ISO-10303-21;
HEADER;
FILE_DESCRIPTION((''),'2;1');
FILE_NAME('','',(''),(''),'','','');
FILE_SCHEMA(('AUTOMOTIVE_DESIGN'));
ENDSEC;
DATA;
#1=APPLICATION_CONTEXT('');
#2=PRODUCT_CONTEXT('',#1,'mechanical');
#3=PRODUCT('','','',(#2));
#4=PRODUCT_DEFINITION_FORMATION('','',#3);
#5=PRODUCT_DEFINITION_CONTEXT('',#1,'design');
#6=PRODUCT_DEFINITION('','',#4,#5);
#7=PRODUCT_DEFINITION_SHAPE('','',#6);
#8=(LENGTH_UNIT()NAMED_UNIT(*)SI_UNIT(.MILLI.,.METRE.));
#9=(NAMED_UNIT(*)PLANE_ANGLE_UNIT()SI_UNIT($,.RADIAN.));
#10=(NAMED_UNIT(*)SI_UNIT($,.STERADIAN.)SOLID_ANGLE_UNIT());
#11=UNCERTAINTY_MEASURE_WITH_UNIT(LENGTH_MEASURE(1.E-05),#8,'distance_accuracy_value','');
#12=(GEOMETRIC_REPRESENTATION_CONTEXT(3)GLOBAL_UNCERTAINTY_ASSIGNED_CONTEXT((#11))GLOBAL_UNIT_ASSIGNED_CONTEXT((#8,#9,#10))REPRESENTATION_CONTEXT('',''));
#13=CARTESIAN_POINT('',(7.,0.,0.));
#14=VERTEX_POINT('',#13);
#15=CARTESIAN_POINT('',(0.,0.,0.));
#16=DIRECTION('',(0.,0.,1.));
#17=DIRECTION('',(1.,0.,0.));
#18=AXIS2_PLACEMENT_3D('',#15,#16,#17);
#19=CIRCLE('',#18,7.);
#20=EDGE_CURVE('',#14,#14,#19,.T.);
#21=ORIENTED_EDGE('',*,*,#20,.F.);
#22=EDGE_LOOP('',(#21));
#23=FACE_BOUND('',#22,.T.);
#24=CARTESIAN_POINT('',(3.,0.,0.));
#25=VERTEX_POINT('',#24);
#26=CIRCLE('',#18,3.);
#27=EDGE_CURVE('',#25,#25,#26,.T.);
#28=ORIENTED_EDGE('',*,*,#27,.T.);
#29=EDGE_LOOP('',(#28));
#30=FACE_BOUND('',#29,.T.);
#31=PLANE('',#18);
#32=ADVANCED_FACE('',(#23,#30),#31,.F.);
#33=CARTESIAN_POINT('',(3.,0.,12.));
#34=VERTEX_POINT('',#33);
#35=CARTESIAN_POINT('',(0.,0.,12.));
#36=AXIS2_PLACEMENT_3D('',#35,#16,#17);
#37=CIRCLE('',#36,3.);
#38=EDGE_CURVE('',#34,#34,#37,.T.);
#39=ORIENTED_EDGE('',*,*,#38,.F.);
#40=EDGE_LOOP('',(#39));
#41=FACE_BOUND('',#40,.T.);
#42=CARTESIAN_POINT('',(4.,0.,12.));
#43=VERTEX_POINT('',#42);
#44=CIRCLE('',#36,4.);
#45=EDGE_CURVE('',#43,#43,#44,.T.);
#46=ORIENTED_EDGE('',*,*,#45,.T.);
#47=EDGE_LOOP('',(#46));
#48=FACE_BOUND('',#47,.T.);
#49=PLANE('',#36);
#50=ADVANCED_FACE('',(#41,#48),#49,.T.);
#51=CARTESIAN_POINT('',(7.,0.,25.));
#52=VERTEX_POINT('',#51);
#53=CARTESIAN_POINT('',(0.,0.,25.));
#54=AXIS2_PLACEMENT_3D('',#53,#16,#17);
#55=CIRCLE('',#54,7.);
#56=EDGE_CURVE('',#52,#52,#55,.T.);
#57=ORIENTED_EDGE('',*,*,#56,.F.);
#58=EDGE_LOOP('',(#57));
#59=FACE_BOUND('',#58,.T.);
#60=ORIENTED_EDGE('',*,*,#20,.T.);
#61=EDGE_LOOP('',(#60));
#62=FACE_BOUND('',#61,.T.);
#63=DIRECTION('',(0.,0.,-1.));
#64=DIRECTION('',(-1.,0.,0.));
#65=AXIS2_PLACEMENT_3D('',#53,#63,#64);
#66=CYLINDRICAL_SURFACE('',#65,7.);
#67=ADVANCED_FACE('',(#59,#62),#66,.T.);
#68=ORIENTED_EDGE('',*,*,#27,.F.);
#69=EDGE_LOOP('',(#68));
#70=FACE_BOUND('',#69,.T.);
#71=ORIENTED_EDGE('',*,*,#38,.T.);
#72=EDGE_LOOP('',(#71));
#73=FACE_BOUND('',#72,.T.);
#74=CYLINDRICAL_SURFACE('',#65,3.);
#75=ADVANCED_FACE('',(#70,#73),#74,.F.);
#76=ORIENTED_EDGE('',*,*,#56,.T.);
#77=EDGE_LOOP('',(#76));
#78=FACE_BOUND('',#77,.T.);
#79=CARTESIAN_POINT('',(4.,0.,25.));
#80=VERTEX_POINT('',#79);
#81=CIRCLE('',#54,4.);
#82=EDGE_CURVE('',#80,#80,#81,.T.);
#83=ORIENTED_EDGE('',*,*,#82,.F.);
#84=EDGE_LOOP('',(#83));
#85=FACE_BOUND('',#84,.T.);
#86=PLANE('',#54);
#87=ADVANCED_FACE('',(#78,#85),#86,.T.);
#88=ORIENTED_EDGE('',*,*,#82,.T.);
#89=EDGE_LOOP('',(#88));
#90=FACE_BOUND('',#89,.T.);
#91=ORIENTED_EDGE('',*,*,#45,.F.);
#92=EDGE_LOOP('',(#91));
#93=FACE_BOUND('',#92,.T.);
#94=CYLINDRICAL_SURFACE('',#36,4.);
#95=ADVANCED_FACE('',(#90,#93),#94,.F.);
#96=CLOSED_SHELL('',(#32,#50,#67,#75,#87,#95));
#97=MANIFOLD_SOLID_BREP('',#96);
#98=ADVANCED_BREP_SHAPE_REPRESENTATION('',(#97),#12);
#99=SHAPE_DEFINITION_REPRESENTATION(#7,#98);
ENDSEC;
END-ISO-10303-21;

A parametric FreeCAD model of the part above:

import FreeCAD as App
import Part
import Sketcher
from FreeCAD import Vector
Q = App.Units.Quantity

doc = App.newDocument("Part")
body = doc.addObject("PartDesign::Body", "Body")

sketch1 = body.newObject("Sketcher::SketchObject", "Sketch")
sketch1.AttachmentSupport = (doc.getObject("XY_Plane"), [""])
sketch1.MapMode = "FlatFace"
sketch1.addGeometry([
    Part.Circle(Vector(0, 0, 0), Vector(0, 0, 1), 7),
    Part.Circle(Vector(0, 0, 0), Vector(0, 0, 1), 3),
], False)
sketch1.addConstraint([
    Sketcher.Constraint("Coincident", 0, 3, -1, 1),
    Sketcher.Constraint("Coincident", 1, 3, -1, 1),
    Sketcher.Constraint("Diameter", 0, Q("14 mm")),
    Sketcher.Constraint("Diameter", 1, Q("6 mm")),
])
pad1 = body.newObject("PartDesign::Pad", "Pad")
pad1.Profile = sketch1
pad1.Length = 25

sketch2 = body.newObject("Sketcher::SketchObject", "Sketch001")
sketch2.AttachmentSupport = (doc.getObject("XY_Plane"), [""])
sketch2.MapMode = "FlatFace"
sketch2.AttachmentOffset = App.Placement(Vector(0, 0, 25), App.Rotation())
sketch2.addGeometry(Part.Circle(Vector(0, 0, 0), Vector(0, 0, 1), 4), False)
sketch2.addConstraint([
    Sketcher.Constraint("Coincident", 0, 3, -1, 1),
    Sketcher.Constraint("Diameter", 0, Q("8 mm")),
])
pocket1 = body.newObject("PartDesign::Pocket", "Pocket")
pocket1.Profile = sketch2
pocket1.Length = 13

doc.recompute()
